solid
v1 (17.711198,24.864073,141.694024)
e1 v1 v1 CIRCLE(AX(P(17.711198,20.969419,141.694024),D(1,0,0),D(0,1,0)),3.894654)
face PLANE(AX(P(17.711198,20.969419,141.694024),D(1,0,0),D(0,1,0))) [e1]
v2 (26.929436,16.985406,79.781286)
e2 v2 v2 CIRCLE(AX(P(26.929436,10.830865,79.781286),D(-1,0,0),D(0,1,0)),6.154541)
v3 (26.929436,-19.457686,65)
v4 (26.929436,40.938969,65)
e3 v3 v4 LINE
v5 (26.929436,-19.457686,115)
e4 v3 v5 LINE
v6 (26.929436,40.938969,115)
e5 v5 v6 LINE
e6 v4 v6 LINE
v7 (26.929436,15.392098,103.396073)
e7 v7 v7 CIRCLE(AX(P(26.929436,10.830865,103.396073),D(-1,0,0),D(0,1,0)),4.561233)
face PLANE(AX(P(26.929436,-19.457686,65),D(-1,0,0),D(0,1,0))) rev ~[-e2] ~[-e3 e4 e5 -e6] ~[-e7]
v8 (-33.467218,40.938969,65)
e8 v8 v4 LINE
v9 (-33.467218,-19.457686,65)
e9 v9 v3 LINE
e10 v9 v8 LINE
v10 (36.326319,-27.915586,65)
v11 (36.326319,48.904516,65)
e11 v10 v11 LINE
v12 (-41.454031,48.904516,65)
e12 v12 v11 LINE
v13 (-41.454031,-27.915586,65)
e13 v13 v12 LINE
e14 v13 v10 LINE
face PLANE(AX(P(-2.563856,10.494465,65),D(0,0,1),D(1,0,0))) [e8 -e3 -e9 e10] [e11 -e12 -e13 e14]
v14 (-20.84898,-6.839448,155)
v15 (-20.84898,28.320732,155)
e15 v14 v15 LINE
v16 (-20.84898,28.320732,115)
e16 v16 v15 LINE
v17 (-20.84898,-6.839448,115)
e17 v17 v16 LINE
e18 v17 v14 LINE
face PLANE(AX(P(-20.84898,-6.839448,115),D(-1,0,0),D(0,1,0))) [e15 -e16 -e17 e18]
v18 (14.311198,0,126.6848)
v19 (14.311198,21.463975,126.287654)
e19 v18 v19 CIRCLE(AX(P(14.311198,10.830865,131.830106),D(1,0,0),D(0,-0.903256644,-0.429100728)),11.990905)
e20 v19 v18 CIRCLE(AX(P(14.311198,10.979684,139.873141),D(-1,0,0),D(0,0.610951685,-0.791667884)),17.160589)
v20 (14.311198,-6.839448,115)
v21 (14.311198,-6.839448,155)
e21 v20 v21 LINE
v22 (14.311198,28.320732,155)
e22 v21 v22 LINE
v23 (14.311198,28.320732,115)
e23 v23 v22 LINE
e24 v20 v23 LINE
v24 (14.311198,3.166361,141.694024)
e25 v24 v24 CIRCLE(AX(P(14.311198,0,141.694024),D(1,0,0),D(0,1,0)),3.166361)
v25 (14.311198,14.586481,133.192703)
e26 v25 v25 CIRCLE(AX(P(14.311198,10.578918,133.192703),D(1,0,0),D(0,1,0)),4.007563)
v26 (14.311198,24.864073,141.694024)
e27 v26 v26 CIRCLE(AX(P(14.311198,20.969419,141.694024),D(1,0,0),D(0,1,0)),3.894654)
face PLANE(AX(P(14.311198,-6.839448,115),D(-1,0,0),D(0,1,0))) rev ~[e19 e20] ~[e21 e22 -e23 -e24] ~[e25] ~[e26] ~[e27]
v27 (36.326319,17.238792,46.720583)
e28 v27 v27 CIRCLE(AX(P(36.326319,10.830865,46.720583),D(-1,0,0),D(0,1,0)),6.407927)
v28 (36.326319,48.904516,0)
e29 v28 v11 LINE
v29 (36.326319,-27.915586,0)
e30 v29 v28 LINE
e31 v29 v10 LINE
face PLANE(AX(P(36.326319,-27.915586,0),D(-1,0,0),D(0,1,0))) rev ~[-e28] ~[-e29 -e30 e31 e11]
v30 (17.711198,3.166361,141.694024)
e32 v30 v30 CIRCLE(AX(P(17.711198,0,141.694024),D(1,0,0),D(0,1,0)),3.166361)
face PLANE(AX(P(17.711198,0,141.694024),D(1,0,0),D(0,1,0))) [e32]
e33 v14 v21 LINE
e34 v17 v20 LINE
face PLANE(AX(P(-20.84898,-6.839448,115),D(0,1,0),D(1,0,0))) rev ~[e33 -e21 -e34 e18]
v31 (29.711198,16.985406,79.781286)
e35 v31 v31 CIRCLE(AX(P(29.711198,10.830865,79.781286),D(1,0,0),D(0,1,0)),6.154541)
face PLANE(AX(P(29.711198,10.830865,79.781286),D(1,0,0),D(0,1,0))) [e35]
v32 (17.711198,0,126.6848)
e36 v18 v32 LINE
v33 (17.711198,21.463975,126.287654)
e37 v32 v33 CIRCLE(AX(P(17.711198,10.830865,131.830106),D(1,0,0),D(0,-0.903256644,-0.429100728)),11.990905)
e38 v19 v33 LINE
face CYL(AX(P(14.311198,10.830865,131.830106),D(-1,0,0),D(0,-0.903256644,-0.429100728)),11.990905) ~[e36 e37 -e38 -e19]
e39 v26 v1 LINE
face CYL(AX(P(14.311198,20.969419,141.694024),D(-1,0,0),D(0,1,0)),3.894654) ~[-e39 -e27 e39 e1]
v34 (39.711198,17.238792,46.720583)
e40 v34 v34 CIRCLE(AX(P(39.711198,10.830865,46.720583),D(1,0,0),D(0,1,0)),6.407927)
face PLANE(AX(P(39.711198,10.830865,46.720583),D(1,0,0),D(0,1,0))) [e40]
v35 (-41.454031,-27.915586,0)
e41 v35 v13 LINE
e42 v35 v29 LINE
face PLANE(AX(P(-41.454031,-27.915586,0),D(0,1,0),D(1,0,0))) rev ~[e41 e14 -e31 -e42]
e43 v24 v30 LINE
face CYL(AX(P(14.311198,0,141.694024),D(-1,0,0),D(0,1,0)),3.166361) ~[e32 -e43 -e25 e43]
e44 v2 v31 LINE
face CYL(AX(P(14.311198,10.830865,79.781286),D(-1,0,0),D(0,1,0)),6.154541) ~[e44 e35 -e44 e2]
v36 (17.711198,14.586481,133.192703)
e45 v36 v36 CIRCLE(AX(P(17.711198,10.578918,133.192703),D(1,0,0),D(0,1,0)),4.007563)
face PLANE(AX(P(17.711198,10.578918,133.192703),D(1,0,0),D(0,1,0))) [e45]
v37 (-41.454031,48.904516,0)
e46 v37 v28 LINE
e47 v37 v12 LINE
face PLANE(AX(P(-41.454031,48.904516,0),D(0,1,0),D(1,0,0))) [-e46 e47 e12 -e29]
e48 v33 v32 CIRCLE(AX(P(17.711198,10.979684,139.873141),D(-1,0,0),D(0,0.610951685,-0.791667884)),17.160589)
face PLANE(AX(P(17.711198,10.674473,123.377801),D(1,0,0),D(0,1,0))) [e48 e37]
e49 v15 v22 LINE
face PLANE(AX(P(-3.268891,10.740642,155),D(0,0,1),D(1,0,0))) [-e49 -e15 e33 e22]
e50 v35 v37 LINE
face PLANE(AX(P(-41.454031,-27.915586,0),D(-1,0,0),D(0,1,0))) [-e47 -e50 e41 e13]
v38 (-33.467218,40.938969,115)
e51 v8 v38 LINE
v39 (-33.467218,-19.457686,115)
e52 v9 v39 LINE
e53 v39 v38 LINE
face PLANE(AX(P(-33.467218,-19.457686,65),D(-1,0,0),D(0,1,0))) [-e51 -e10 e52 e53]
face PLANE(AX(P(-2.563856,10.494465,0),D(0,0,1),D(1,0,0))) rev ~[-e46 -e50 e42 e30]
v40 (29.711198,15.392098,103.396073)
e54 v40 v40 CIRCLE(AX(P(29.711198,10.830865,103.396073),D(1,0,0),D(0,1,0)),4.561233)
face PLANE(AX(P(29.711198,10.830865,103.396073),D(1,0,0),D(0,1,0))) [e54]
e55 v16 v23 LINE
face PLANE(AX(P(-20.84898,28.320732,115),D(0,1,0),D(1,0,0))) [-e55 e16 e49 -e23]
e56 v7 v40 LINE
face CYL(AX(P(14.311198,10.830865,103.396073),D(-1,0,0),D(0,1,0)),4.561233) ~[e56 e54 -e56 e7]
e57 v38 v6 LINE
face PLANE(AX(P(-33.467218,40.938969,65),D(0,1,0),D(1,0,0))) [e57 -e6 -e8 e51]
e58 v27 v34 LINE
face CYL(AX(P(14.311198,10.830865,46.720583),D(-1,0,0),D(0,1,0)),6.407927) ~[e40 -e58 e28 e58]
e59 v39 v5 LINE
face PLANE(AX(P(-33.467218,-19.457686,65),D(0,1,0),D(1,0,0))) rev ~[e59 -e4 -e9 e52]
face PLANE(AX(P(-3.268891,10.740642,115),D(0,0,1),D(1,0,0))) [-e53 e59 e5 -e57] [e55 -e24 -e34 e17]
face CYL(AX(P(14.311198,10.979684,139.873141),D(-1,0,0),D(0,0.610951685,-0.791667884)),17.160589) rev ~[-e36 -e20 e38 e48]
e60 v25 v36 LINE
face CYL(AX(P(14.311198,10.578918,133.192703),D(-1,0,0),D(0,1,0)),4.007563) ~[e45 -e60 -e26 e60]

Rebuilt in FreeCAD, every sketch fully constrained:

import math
import FreeCAD as App
import Part
import Sketcher


def add_polygon(sketch, points):
    """Adds a closed chain of lines whose ends are joined by coincident constraints."""
    first, n = sketch.GeometryCount, len(points)
    for a, b in zip(points, points[1:] + points[:1]):
        sketch.addGeometry(Part.LineSegment(App.Vector(*a, 0), App.Vector(*b, 0)), False)
    for i in range(n):
        sketch.addConstraint(Sketcher.Constraint("Coincident", first + i, 2, first + (i + 1) % n, 1))

doc = App.newDocument("Part")
body = doc.addObject("PartDesign::Body", "Body")

sketch1 = body.newObject("Sketcher::SketchObject", "Sketch")
sketch1.AttachmentSupport = (doc.getObject("XY_Plane"), [""])
sketch1.MapMode = "FlatFace"
add_polygon(sketch1, [(-41.454031, 48.904516), (-41.454031, -27.915586), (36.326319, -27.915586), (36.326319, 48.904516)])
sketch1.addConstraint(Sketcher.Constraint("Vertical", 0))
sketch1.addConstraint(Sketcher.Constraint("Horizontal", 1))
sketch1.addConstraint(Sketcher.Constraint("Vertical", 2))
sketch1.addConstraint(Sketcher.Constraint("Horizontal", 3))
sketch1.addConstraint(Sketcher.Constraint("DistanceX", 1, 1, 1, 2, 77.780351))
sketch1.addConstraint(Sketcher.Constraint("DistanceY", 0, 2, 0, 1, 76.820102))
sketch1.addConstraint(Sketcher.Constraint("DistanceX", 0, 2, -1, 1, 41.454031))
sketch1.addConstraint(Sketcher.Constraint("DistanceY", 0, 2, -1, 1, 27.915586))
pad1 = body.newObject("PartDesign::Pad", "Pad")
pad1.Profile = sketch1
pad1.Length = 65

sketch2 = body.newObject("Sketcher::SketchObject", "Sketch001")
sketch2.AttachmentSupport = (doc.getObject("XY_Plane"), [""])
sketch2.MapMode = "FlatFace"
sketch2.AttachmentOffset = App.Placement(App.Vector(0, 0, 65), App.Rotation())
add_polygon(sketch2, [(-33.467218, 40.938969), (-33.467218, -19.457686), (26.929436, -19.457686), (26.929436, 40.938969)])
sketch2.addConstraint(Sketcher.Constraint("Vertical", 0))
sketch2.addConstraint(Sketcher.Constraint("Horizontal", 1))
sketch2.addConstraint(Sketcher.Constraint("Vertical", 2))
sketch2.addConstraint(Sketcher.Constraint("Horizontal", 3))
sketch2.addConstraint(Sketcher.Constraint("Equal", 3, 0))
sketch2.addConstraint(Sketcher.Constraint("DistanceX", 1, 1, 1, 2, 60.396654))
sketch2.addConstraint(Sketcher.Constraint("DistanceX", 0, 2, -1, 1, 33.467218))
sketch2.addConstraint(Sketcher.Constraint("DistanceY", -1, 1, 2, 2, 40.938969))
pad2 = body.newObject("PartDesign::Pad", "Pad001")
pad2.Profile = sketch2
pad2.Length = 50

sketch3 = body.newObject("Sketcher::SketchObject", "Sketch002")
sketch3.AttachmentSupport = (doc.getObject("XY_Plane"), [""])
sketch3.MapMode = "FlatFace"
sketch3.AttachmentOffset = App.Placement(App.Vector(0, 0, 115), App.Rotation())
add_polygon(sketch3, [(-20.84898, 28.320732), (-20.84898, -6.839448), (14.311198, -6.839448), (14.311198, 28.320732)])
sketch3.addConstraint(Sketcher.Constraint("Vertical", 0))
sketch3.addConstraint(Sketcher.Constraint("Horizontal", 1))
sketch3.addConstraint(Sketcher.Constraint("Vertical", 2))
sketch3.addConstraint(Sketcher.Constraint("Horizontal", 3))
sketch3.addConstraint(Sketcher.Constraint("Equal", 3, 0))
sketch3.addConstraint(Sketcher.Constraint("DistanceX", 1, 1, 1, 2, 35.160178))
sketch3.addConstraint(Sketcher.Constraint("DistanceX", 0, 2, -1, 1, 20.84898))
sketch3.addConstraint(Sketcher.Constraint("DistanceY", -1, 1, 2, 2, 28.320732))
pad3 = body.newObject("PartDesign::Pad", "Pad002")
pad3.Profile = sketch3
pad3.Length = 40

sketch4 = body.newObject("Sketcher::SketchObject", "Sketch003")
sketch4.AttachmentSupport = (doc.getObject("YZ_Plane"), [""])
sketch4.MapMode = "FlatFace"
sketch4.AttachmentOffset = App.Placement(App.Vector(0, 0, 14.311198), App.Rotation())
sketch4.addGeometry(Part.Circle(App.Vector(0, 141.694024, 0), App.Vector(0, 0, 1), 3.166361), False)
sketch4.addGeometry(Part.Circle(App.Vector(20.969419, 141.694024, 0), App.Vector(0, 0, 1), 3.894654), False)
sketch4.addGeometry(Part.Circle(App.Vector(10.578918, 133.192703, 0), App.Vector(0, 0, 1), 4.007563), False)
sketch4.addGeometry(Part.ArcOfCircle(Part.Circle(App.Vector(10.979684, 139.873141, 0), App.Vector(0, 0, 1), 17.160589), math.radians(-129.778383), math.radians(-52.341652)), False)
sketch4.addGeometry(Part.ArcOfCircle(Part.Circle(App.Vector(10.830865, 131.830106, 0), App.Vector(0, 0, 1), 11.990905), math.radians(-154.589496), math.radians(-27.530539)), False)
sketch4.addGeometry(Part.Circle(App.Vector(10.830865, 103.396073, 0), App.Vector(0, 0, 1), 4.561233), False)
sketch4.addGeometry(Part.Circle(App.Vector(10.830865, 79.781286, 0), App.Vector(0, 0, 1), 6.154541), False)
sketch4.addGeometry(Part.Circle(App.Vector(10.830865, 46.720583, 0), App.Vector(0, 0, 1), 6.407927), False)
sketch4.addConstraint(Sketcher.Constraint("Coincident", 3, 1, 4, 1))
sketch4.addConstraint(Sketcher.Constraint("Coincident", 4, 2, 3, 2))
sketch4.addConstraint(Sketcher.Constraint("PointOnObject", 0, 3, -2))
sketch4.addConstraint(Sketcher.Constraint("PointOnObject", 3, 1, -2))
sketch4.addConstraint(Sketcher.Constraint("Horizontal", 0, 3, 1, 3))
sketch4.addConstraint(Sketcher.Constraint("Vertical", 4, 3, 5, 3))
sketch4.addConstraint(Sketcher.Constraint("Vertical", 5, 3, 6, 3))
sketch4.addConstraint(Sketcher.Constraint("Vertical", 6, 3, 7, 3))
sketch4.addConstraint(Sketcher.Constraint("Radius", 3, 17.160589))
sketch4.addConstraint(Sketcher.Constraint("Diameter", 0, 6.332722))
sketch4.addConstraint(Sketcher.Constraint("Diameter", 1, 7.789308))
sketch4.addConstraint(Sketcher.Constraint("Diameter", 2, 8.015126))
sketch4.addConstraint(Sketcher.Constraint("Diameter", 5, 9.122466))
sketch4.addConstraint(Sketcher.Constraint("Diameter", 6, 12.309082))
sketch4.addConstraint(Sketcher.Constraint("Diameter", 7, 12.815854))
sketch4.addConstraint(Sketcher.Constraint("Radius", 4, 11.990905))
sketch4.addConstraint(Sketcher.Constraint("DistanceY", -1, 1, 3, 1, 126.6848))
sketch4.addConstraint(Sketcher.Constraint("DistanceX", 2, 3, 1, 3, 10.390501))
sketch4.addConstraint(Sketcher.Constraint("DistanceX", -1, 1, 1, 3, 20.969419))
sketch4.addConstraint(Sketcher.Constraint("DistanceY", -1, 1, 3, 3, 139.873141))
sketch4.addConstraint(Sketcher.Constraint("DistanceY", 2, 3, 1, 3, 8.501321))
sketch4.addConstraint(Sketcher.Constraint("DistanceY", 2, 3, 3, 3, 6.680438))
sketch4.addConstraint(Sketcher.Constraint("DistanceX", 4, 3, 3, 3, 0.14882))
sketch4.addConstraint(Sketcher.Constraint("DistanceY", 5, 3, 2, 3, 29.79663))
sketch4.addConstraint(Sketcher.Constraint("DistanceY", 6, 3, 4, 3, 52.04882))
sketch4.addConstraint(Sketcher.Constraint("DistanceY", 7, 3, 5, 3, 56.67549))
pad4 = body.newObject("PartDesign::Pad", "Pad003")
pad4.Profile = sketch4
pad4.Length = 25.4

sketch5 = body.newObject("Sketcher::SketchObject", "Sketch004")
sketch5.AttachmentSupport = (doc.getObject("YZ_Plane"), [""])
sketch5.MapMode = "FlatFace"
sketch5.AttachmentOffset = App.Placement(App.Vector(0, 0, 39.711198), App.Rotation())
sketch5.addGeometry(Part.Circle(App.Vector(10.830865, 103.396073, 0), App.Vector(0, 0, 1), 4.561233), False)
sketch5.addGeometry(Part.ArcOfCircle(Part.Circle(App.Vector(10.830865, 131.830106, 0), App.Vector(0, 0, 1), 11.990905), math.radians(-154.589496), math.radians(-27.530539)), False)
sketch5.addGeometry(Part.ArcOfCircle(Part.Circle(App.Vector(10.979684, 139.873141, 0), App.Vector(0, 0, 1), 17.160589), math.radians(-129.778383), math.radians(-52.341652)), False)
sketch5.addGeometry(Part.Circle(App.Vector(10.830865, 79.781286, 0), App.Vector(0, 0, 1), 6.154541), False)
sketch5.addGeometry(Part.Circle(App.Vector(10.578918, 133.192703, 0), App.Vector(0, 0, 1), 4.007563), False)
sketch5.addGeometry(Part.Circle(App.Vector(20.969419, 141.694024, 0), App.Vector(0, 0, 1), 3.894654), False)
sketch5.addGeometry(Part.Circle(App.Vector(0, 141.694024, 0), App.Vector(0, 0, 1), 3.166361), False)
sketch5.addConstraint(Sketcher.Constraint("Coincident", 1, 1, 2, 1))
sketch5.addConstraint(Sketcher.Constraint("Coincident", 2, 2, 1, 2))
sketch5.addConstraint(Sketcher.Constraint("PointOnObject", 6, 3, -2))
sketch5.addConstraint(Sketcher.Constraint("PointOnObject", 1, 1, -2))
sketch5.addConstraint(Sketcher.Constraint("Horizontal", 5, 3, 6, 3))
sketch5.addConstraint(Sketcher.Constraint("Vertical", 0, 3, 1, 3))
sketch5.addConstraint(Sketcher.Constraint("Vertical", 1, 3, 3, 3))
sketch5.addConstraint(Sketcher.Constraint("Radius", 2, 17.160589))
sketch5.addConstraint(Sketcher.Constraint("Diameter", 0, 9.122466))
sketch5.addConstraint(Sketcher.Constraint("Diameter", 3, 12.309082))
sketch5.addConstraint(Sketcher.Constraint("Diameter", 4, 8.015126))
sketch5.addConstraint(Sketcher.Constraint("Diameter", 5, 7.789308))
sketch5.addConstraint(Sketcher.Constraint("Diameter", 6, 6.332722))
sketch5.addConstraint(Sketcher.Constraint("Radius", 1, 11.990905))
sketch5.addConstraint(Sketcher.Constraint("DistanceY", -1, 1, 1, 1, 126.6848))
sketch5.addConstraint(Sketcher.Constraint("DistanceX", 4, 3, 5, 3, 10.390501))
sketch5.addConstraint(Sketcher.Constraint("DistanceY", -1, 1, 2, 3, 139.873141))
sketch5.addConstraint(Sketcher.Constraint("DistanceX", -1, 1, 5, 3, 20.969419))
sketch5.addConstraint(Sketcher.Constraint("DistanceX", 1, 3, 2, 3, 0.14882))
sketch5.addConstraint(Sketcher.Constraint("DistanceY", 0, 3, 2, 3, 36.477068))
sketch5.addConstraint(Sketcher.Constraint("DistanceY", 3, 3, 1, 3, 52.04882))
sketch5.addConstraint(Sketcher.Constraint("DistanceY", 4, 3, 2, 3, 6.680438))
sketch5.addConstraint(Sketcher.Constraint("DistanceY", 4, 3, 5, 3, 8.501321))
pocket1 = body.newObject("PartDesign::Pocket", "Pocket")
pocket1.Profile = sketch5
pocket1.Length = 10

sketch6 = body.newObject("Sketcher::SketchObject", "Sketch005")
sketch6.AttachmentSupport = (doc.getObject("YZ_Plane"), [""])
sketch6.MapMode = "FlatFace"
sketch6.AttachmentOffset = App.Placement(App.Vector(0, 0, 29.711198), App.Rotation())
sketch6.addGeometry(Part.Circle(App.Vector(0, 141.694024, 0), App.Vector(0, 0, 1), 3.166361), False)
sketch6.addGeometry(Part.Circle(App.Vector(10.578918, 133.192703, 0), App.Vector(0, 0, 1), 4.007563), False)
sketch6.addGeometry(Part.Circle(App.Vector(20.969419, 141.694024, 0), App.Vector(0, 0, 1), 3.894654), False)
sketch6.addGeometry(Part.ArcOfCircle(Part.Circle(App.Vector(10.830865, 131.830106, 0), App.Vector(0, 0, 1), 11.990905), math.radians(-154.589496), math.radians(-27.530539)), False)
sketch6.addGeometry(Part.ArcOfCircle(Part.Circle(App.Vector(10.979684, 139.873141, 0), App.Vector(0, 0, 1), 17.160589), math.radians(-129.778383), math.radians(-52.341652)), False)
sketch6.addConstraint(Sketcher.Constraint("Coincident", 3, 1, 4, 1))
sketch6.addConstraint(Sketcher.Constraint("Coincident", 4, 2, 3, 2))
sketch6.addConstraint(Sketcher.Constraint("PointOnObject", 0, 3, -2))
sketch6.addConstraint(Sketcher.Constraint("PointOnObject", 3, 1, -2))
sketch6.addConstraint(Sketcher.Constraint("Horizontal", 0, 3, 2, 3))
sketch6.addConstraint(Sketcher.Constraint("Radius", 4, 17.160589))
sketch6.addConstraint(Sketcher.Constraint("Diameter", 0, 6.332722))
sketch6.addConstraint(Sketcher.Constraint("Diameter", 1, 8.015126))
sketch6.addConstraint(Sketcher.Constraint("Diameter", 2, 7.789308))
sketch6.addConstraint(Sketcher.Constraint("Radius", 3, 11.990905))
sketch6.addConstraint(Sketcher.Constraint("DistanceY", -1, 1, 3, 1, 126.6848))
sketch6.addConstraint(Sketcher.Constraint("DistanceX", 1, 3, 2, 3, 10.390501))
sketch6.addConstraint(Sketcher.Constraint("DistanceX", -1, 1, 2, 3, 20.969419))
sketch6.addConstraint(Sketcher.Constraint("DistanceY", -1, 1, 4, 3, 139.873141))
sketch6.addConstraint(Sketcher.Constraint("DistanceY", 1, 3, 0, 3, 8.501321))
sketch6.addConstraint(Sketcher.Constraint("DistanceY", 1, 3, 4, 3, 6.680438))
sketch6.addConstraint(Sketcher.Constraint("DistanceX", 3, 3, 4, 3, 0.14882))
pocket2 = body.newObject("PartDesign::Pocket", "Pocket001")
pocket2.Profile = sketch6
pocket2.Length = 12

doc.recompute()
